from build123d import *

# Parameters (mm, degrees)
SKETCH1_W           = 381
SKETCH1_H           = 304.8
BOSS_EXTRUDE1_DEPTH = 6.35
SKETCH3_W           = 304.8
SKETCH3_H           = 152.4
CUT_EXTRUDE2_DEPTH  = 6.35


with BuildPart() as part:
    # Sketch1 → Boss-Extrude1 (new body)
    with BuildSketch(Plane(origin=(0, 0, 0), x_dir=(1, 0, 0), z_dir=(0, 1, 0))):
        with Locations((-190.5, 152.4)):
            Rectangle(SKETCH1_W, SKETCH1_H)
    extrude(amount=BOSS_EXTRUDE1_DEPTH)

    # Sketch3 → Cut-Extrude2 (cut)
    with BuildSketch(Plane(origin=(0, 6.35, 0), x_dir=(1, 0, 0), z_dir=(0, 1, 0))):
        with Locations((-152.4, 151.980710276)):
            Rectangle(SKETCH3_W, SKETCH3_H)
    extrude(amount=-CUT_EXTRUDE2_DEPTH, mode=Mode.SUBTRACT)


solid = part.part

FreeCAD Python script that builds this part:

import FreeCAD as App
import Part
import Sketcher
from FreeCAD import Vector
Q = App.Units.Quantity


def add_polygon(sketch, points):
    """Adds a closed chain of lines whose ends are joined by coincident constraints."""
    first, n = sketch.GeometryCount, len(points)
    for a, b in zip(points, points[1:] + points[:1]):
        sketch.addGeometry(Part.LineSegment(App.Vector(*a, 0), App.Vector(*b, 0)), False)
    for i in range(n):
        sketch.addConstraint(Sketcher.Constraint("Coincident", first + i, 2, first + (i + 1) % n, 1))

doc = App.newDocument("Part")
params = doc.addObject("Spreadsheet::Sheet", "Params")
for row, (alias, value) in enumerate([
    ("sketch1_width", "15 in"),
    ("sketch1_height", "12 in"),
    ("pad1_length", "0.25 in"),
    ("sketch2_width", "12 in"),
    ("sketch2_height", "6 in"),
    ("pocket1_length", "0.25 in"),
], start=1):
    params.set(f"A{row}", alias)
    params.set(f"B{row}", "=" + value)
    params.setAlias(f"B{row}", alias)

body = doc.addObject("PartDesign::Body", "Body")

# Sketch on XZ plane
sketch1 = doc.addObject("Sketcher::SketchObject", "Sketch")
body.addObject(sketch1)
sketch1.AttachmentSupport = (doc.XZ_Plane, [""])
sketch1.MapMode = "FlatFace"
add_polygon(sketch1, [(-381, -305), (-381, 0), (0, 0), (0, -305)])  # lines 0-3
sketch1.addConstraint(Sketcher.Constraint("Vertical", 0))
sketch1.addConstraint(Sketcher.Constraint("Horizontal", 1))
sketch1.addConstraint(Sketcher.Constraint("Vertical", 2))
sketch1.addConstraint(Sketcher.Constraint("Horizontal", 3))
sketch1.addConstraint(Sketcher.Constraint("Coincident", 1, 2, -1, 1))
sketch1.addConstraint(Sketcher.Constraint("DistanceX", 1, 1, 1, 2, Q("15 in")))
sketch1.addConstraint(Sketcher.Constraint("DistanceY", 0, 1, 0, 2, Q("12 in")))
sketch1.setExpression("Constraints[9]", "Params.sketch1_width")
sketch1.setExpression("Constraints[10]", "Params.sketch1_height")
pad1 = doc.addObject("PartDesign::Pad", "Pad")
body.addObject(pad1)
pad1.Profile = sketch1
pad1.setExpression("Length", "Params.pad1_length")
pad1.Reversed = True

# Sketch on XZ plane
sketch2 = doc.addObject("Sketcher::SketchObject", "Sketch001")
body.addObject(sketch2)
sketch2.AttachmentSupport = (doc.XZ_Plane, [""])
sketch2.MapMode = "FlatFace"
sketch2.AttachmentOffset = App.Placement(Vector(0, 0, -0.25 * 25.4), App.Rotation())
add_polygon(sketch2, [(-305, -228), (-305, -76), (0, -76), (0, -228)])  # lines 0-3
sketch2.addConstraint(Sketcher.Constraint("Vertical", 0))
sketch2.addConstraint(Sketcher.Constraint("Horizontal", 1))
sketch2.addConstraint(Sketcher.Constraint("Vertical", 2))
sketch2.addConstraint(Sketcher.Constraint("Horizontal", 3))
sketch2.addConstraint(Sketcher.Constraint("PointOnObject", 1, 2, -2))
sketch2.addConstraint(Sketcher.Constraint("DistanceX", 1, 1, 1, 2, Q("12 in")))
sketch2.addConstraint(Sketcher.Constraint("DistanceY", 0, 1, 0, 2, Q("6 in")))
sketch2.addConstraint(Sketcher.Constraint("DistanceY", 0, 2, -1, 1, 75.78071))
sketch2.setExpression("Constraints[9]", "Params.sketch2_width")
sketch2.setExpression("Constraints[10]", "Params.sketch2_height")
pocket1 = doc.addObject("PartDesign::Pocket", "Pocket")
body.addObject(pocket1)
pocket1.Profile = sketch2
pocket1.setExpression("Length", "Params.pocket1_length")
pocket1.Reversed = True

doc.recompute()
